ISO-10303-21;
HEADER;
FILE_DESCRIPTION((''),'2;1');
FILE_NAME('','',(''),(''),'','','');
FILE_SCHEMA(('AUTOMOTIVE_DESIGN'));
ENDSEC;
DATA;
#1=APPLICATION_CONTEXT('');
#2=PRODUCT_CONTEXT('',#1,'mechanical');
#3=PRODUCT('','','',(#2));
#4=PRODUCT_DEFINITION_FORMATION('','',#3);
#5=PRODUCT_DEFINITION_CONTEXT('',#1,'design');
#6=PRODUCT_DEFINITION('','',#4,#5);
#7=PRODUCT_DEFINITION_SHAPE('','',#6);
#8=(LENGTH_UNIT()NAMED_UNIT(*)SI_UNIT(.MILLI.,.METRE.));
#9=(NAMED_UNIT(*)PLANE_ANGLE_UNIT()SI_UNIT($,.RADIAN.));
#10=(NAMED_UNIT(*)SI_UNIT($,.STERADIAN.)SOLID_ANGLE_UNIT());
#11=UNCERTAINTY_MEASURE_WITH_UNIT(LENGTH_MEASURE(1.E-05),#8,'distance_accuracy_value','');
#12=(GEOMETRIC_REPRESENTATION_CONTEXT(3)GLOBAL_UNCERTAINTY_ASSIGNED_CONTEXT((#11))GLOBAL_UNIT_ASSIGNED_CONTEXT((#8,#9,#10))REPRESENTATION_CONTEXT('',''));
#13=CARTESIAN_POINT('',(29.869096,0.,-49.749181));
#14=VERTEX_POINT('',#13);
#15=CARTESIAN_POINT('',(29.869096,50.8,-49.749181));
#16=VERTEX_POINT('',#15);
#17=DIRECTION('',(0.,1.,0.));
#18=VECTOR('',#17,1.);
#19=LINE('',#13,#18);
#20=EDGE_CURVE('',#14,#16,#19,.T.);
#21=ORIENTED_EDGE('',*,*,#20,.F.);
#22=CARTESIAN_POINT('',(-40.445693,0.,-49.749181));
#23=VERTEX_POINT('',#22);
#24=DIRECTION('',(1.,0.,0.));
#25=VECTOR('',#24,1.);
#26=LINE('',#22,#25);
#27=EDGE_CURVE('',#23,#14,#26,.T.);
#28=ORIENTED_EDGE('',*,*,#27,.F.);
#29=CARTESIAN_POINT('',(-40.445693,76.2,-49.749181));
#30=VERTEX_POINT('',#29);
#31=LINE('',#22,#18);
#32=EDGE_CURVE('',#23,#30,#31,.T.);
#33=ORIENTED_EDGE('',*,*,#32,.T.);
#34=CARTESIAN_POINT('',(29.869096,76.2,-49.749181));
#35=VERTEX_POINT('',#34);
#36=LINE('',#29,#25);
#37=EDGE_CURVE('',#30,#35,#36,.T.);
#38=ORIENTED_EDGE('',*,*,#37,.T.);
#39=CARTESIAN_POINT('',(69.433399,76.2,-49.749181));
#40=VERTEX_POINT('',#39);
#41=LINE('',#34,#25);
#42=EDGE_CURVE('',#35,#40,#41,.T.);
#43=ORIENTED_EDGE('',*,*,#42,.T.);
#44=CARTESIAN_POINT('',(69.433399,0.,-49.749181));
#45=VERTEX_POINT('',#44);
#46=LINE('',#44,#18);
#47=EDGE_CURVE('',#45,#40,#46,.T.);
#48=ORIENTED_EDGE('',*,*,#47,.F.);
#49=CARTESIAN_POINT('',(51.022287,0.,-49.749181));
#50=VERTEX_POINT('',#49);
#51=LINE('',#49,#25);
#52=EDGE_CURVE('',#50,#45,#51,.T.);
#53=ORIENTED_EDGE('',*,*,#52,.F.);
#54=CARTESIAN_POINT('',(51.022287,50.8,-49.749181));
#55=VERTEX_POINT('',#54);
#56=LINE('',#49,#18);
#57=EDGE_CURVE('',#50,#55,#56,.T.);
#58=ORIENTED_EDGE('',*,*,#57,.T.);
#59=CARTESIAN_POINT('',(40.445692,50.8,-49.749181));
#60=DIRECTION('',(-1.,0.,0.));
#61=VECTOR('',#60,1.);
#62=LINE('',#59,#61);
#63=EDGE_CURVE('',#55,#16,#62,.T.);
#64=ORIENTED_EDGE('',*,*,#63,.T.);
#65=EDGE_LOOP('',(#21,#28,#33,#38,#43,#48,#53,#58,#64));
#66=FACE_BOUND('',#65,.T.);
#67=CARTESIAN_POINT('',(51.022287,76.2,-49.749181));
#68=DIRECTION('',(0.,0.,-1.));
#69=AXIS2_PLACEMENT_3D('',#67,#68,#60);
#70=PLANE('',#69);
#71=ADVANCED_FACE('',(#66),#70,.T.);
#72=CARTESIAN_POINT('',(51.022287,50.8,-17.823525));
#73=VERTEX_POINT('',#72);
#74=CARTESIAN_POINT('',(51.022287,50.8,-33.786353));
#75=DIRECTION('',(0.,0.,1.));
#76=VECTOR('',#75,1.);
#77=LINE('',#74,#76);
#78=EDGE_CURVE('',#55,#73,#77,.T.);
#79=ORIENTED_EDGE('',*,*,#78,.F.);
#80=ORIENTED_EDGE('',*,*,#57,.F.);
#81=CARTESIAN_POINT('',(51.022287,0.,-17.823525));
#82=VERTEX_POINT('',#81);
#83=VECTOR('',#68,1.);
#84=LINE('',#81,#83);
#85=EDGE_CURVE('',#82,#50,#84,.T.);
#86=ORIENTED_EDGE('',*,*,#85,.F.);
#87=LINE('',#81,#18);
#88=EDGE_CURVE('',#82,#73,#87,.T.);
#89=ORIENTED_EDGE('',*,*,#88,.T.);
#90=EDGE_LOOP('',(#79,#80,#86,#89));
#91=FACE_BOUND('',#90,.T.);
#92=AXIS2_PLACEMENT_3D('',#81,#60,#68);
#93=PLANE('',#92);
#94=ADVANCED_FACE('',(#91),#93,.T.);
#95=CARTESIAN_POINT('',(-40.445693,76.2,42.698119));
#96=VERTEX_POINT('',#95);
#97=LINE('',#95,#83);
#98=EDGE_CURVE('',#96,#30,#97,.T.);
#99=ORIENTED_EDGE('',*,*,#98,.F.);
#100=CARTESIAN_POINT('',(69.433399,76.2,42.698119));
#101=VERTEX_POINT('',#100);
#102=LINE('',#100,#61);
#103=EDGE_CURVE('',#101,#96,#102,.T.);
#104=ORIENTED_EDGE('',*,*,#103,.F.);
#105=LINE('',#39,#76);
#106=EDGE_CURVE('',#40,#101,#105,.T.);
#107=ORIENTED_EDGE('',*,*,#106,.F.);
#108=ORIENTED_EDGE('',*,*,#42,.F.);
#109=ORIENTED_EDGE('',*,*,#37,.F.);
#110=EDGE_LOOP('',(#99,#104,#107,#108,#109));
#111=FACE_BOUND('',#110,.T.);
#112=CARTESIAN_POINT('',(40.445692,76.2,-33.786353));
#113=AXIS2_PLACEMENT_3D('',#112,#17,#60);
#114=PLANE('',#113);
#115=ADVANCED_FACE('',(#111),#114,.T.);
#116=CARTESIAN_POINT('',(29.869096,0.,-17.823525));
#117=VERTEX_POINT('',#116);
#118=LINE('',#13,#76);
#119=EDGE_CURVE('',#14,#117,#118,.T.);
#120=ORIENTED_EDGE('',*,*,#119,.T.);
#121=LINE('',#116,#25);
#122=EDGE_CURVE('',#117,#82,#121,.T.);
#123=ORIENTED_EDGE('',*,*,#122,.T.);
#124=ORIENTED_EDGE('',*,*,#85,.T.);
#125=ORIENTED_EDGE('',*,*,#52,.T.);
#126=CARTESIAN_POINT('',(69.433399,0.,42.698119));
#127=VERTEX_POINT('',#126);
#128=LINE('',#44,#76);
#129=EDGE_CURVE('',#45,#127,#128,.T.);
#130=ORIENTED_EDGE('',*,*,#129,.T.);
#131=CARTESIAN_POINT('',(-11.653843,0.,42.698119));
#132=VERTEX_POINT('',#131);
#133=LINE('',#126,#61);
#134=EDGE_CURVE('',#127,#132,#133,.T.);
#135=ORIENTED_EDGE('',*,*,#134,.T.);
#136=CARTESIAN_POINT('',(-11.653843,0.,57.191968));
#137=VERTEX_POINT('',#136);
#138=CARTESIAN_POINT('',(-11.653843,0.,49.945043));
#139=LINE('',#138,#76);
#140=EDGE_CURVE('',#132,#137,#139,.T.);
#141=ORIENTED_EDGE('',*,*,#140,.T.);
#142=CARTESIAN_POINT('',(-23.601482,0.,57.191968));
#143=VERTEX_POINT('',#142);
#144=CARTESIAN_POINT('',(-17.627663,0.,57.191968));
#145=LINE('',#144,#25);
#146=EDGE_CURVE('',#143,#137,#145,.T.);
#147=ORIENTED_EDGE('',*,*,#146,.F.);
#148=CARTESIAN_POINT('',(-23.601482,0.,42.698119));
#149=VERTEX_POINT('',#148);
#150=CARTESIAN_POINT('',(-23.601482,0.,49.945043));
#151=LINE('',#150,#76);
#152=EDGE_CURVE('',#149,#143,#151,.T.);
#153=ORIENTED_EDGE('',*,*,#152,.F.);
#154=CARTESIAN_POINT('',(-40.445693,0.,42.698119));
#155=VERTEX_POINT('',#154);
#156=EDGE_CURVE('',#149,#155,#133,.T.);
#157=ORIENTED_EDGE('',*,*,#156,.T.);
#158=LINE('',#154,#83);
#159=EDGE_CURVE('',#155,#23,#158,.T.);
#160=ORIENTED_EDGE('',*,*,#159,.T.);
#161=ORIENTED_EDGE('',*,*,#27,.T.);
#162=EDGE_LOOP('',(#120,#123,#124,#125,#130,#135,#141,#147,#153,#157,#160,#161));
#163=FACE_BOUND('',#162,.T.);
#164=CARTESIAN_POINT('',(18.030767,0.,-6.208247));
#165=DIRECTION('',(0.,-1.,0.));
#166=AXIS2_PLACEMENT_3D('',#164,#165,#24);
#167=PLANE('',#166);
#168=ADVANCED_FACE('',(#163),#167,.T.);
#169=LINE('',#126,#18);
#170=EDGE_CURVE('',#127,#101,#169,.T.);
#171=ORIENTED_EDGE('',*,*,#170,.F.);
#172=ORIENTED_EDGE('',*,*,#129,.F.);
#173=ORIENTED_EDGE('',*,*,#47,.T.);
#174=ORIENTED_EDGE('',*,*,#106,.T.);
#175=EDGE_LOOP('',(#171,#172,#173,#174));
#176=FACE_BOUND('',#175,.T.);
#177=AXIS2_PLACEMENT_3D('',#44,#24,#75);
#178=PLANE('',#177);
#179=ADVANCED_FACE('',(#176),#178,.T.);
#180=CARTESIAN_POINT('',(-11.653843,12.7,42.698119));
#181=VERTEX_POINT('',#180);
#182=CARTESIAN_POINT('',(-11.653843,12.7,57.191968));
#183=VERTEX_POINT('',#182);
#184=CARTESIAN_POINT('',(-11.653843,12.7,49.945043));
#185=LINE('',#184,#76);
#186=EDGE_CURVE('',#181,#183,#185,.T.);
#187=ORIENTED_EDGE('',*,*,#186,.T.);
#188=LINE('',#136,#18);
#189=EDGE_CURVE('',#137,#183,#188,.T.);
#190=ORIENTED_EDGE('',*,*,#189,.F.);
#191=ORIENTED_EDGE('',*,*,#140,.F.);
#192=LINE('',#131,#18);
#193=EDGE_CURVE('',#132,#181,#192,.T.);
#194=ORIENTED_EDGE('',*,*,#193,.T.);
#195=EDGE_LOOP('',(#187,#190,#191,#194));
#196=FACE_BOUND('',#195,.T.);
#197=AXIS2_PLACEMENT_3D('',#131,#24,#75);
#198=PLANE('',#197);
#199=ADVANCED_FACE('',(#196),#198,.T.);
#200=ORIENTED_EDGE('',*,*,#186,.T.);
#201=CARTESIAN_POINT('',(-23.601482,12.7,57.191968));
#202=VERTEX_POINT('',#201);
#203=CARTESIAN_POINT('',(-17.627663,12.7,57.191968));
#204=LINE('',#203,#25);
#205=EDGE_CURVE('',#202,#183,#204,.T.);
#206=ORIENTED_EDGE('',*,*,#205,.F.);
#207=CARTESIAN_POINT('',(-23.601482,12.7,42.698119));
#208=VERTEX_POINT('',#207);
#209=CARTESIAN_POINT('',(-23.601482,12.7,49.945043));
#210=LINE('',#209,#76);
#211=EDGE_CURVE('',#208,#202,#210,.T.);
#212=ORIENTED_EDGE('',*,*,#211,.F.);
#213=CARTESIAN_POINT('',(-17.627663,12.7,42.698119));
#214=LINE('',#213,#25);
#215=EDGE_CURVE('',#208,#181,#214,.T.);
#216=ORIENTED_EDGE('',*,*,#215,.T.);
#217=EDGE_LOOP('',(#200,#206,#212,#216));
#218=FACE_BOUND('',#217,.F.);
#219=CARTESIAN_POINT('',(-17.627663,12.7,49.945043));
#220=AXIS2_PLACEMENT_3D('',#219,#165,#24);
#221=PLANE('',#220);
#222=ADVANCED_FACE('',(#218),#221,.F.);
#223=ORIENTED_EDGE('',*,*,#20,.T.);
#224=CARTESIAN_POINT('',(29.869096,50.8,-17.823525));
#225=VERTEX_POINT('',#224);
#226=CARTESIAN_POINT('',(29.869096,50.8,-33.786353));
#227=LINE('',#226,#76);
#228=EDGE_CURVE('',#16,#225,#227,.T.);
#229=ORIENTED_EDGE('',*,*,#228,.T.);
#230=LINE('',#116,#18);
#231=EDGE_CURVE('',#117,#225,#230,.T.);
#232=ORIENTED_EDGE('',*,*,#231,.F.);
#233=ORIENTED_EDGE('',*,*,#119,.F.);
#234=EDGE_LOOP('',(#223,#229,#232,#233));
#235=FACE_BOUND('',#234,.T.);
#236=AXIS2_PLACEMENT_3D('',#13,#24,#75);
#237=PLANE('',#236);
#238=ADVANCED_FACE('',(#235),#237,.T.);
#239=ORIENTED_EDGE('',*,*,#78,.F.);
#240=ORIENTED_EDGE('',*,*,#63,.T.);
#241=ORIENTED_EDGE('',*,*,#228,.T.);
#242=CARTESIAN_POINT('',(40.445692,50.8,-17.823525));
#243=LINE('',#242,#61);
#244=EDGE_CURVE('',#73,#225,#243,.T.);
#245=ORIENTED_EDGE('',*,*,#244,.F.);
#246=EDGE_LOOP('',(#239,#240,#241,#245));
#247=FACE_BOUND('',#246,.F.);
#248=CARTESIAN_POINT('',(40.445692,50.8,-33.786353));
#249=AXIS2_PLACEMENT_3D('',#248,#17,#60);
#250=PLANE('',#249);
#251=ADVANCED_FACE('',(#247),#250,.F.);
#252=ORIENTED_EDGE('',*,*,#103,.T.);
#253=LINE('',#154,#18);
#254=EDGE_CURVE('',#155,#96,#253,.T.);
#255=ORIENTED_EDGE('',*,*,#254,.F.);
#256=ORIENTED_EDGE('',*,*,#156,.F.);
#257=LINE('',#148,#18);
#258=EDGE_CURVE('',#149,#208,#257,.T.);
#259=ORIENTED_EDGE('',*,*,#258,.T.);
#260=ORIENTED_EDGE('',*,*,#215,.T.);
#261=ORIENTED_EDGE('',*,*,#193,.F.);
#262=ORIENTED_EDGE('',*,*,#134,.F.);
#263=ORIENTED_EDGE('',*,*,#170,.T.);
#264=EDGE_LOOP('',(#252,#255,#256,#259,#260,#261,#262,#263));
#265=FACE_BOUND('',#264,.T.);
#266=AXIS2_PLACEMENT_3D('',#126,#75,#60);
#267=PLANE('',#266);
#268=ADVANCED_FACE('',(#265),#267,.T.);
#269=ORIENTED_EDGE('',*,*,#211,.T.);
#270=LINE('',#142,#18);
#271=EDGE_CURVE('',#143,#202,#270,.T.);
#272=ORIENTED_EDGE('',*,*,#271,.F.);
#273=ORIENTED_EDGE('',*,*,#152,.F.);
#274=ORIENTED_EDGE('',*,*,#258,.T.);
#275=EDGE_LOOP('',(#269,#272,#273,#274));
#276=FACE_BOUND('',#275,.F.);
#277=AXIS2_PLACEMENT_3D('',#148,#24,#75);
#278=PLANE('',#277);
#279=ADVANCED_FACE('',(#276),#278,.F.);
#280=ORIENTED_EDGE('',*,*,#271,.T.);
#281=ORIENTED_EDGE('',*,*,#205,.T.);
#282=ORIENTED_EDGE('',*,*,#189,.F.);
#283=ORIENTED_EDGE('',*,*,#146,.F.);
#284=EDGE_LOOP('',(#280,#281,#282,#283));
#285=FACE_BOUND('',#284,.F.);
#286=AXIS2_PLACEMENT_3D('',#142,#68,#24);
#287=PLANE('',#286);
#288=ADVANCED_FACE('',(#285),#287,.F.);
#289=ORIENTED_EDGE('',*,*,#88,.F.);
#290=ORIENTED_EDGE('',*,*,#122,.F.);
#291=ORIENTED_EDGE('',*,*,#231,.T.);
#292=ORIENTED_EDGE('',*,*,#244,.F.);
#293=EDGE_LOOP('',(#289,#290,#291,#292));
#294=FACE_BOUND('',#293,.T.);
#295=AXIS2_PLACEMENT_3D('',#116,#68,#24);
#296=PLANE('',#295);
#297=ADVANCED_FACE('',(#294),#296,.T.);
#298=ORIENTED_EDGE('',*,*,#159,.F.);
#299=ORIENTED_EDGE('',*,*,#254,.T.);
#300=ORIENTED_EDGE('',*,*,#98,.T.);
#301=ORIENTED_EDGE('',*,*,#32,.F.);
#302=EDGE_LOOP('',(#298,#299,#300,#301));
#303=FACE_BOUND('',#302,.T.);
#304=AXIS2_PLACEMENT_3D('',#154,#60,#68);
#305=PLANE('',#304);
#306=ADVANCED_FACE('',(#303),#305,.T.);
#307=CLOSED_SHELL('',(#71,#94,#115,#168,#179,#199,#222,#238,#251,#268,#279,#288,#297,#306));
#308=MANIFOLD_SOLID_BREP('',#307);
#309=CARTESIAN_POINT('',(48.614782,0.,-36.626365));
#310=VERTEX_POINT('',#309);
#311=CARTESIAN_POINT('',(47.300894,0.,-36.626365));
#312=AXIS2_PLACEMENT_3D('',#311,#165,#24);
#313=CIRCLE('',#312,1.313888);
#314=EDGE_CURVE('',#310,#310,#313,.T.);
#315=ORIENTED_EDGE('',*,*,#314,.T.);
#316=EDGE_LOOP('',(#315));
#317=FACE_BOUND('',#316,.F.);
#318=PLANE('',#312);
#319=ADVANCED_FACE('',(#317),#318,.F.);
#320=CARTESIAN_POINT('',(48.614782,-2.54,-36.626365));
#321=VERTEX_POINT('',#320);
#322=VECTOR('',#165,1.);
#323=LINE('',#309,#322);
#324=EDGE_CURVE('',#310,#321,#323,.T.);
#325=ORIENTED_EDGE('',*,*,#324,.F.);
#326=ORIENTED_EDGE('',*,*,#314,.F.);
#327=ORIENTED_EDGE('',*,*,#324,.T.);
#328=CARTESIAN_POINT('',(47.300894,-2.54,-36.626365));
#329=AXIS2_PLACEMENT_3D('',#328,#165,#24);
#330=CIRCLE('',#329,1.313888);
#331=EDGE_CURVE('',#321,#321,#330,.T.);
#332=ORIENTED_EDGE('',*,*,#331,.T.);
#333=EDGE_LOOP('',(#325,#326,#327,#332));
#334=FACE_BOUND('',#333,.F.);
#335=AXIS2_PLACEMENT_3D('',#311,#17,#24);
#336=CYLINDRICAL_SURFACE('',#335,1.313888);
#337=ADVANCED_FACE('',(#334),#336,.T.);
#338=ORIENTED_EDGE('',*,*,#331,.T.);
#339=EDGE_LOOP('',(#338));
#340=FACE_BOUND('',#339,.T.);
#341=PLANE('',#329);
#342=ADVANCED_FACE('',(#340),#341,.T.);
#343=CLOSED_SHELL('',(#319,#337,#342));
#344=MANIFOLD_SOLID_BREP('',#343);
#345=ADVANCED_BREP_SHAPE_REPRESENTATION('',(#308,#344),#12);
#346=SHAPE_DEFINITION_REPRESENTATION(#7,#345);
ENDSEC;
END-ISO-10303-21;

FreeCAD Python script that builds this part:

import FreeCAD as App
import Part
import Sketcher
from FreeCAD import Vector
Q = App.Units.Quantity

doc = App.newDocument("Part")
body = doc.addObject("PartDesign::Body", "Body")

sketch1 = body.newObject("Sketcher::SketchObject", "Sketch")
sketch1.AttachmentSupport = (doc.getObject("XZ_Plane"), [""])
sketch1.MapMode = "FlatFace"
sketch1.addGeometry([
    Part.LineSegment(Vector(-40.445693, 42.698119, 0), Vector(-40.445693, -49.749181, 0)),
    Part.LineSegment(Vector(-40.445693, -49.749181, 0), Vector(29.869096, -49.749181, 0)),
    Part.LineSegment(Vector(29.869096, -49.749181, 0), Vector(29.869096, -17.823525, 0)),
    Part.LineSegment(Vector(29.869096, -17.823525, 0), Vector(51.022287, -17.823525, 0)),
    Part.LineSegment(Vector(51.022287, -17.823525, 0), Vector(51.022287, -49.749181, 0)),
    Part.LineSegment(Vector(51.022287, -49.749181, 0), Vector(69.433399, -49.749181, 0)),
    Part.LineSegment(Vector(69.433399, -49.749181, 0), Vector(69.433399, 42.698119, 0)),
    Part.LineSegment(Vector(69.433399, 42.698119, 0), Vector(-40.445693, 42.698119, 0)),
], False)
sketch1.addConstraint([
    Sketcher.Constraint("Coincident", 0, 2, 1, 1),
    Sketcher.Constraint("Coincident", 1, 2, 2, 1),
    Sketcher.Constraint("Coincident", 2, 2, 3, 1),
    Sketcher.Constraint("Coincident", 3, 2, 4, 1),
    Sketcher.Constraint("Coincident", 4, 2, 5, 1),
    Sketcher.Constraint("Coincident", 5, 2, 6, 1),
    Sketcher.Constraint("Coincident", 6, 2, 7, 1),
    Sketcher.Constraint("Coincident", 7, 2, 0, 1),
    Sketcher.Constraint("Vertical", 0),
    Sketcher.Constraint("Horizontal", 1),
    Sketcher.Constraint("Vertical", 2),
    Sketcher.Constraint("Horizontal", 3),
    Sketcher.Constraint("Vertical", 4),
    Sketcher.Constraint("Horizontal", 5),
    Sketcher.Constraint("Vertical", 6),
    Sketcher.Constraint("Horizontal", 7),
    Sketcher.Constraint("Horizontal", 1, 2, 4, 2),
    Sketcher.Constraint("DistanceY", 0, 2, 0, 1, Q("92.4473 mm")),
    Sketcher.Constraint("DistanceX", 1, 1, 1, 2, Q("70.314789 mm")),
    Sketcher.Constraint("DistanceX", 3, 1, 3, 2, Q("21.153191 mm")),
    Sketcher.Constraint("DistanceX", 5, 1, 5, 2, Q("18.411111 mm")),
    Sketcher.Constraint("DistanceX", -1, 1, 5, 2, Q("69.433399 mm")),
    Sketcher.Constraint("DistanceY", 2, 1, 2, 2, Q("31.925656 mm")),
    Sketcher.Constraint("DistanceY", 0, 2, -1, 1, Q("49.749181 mm")),
])
pad1 = body.newObject("PartDesign::Pad", "Pad")
pad1.Profile = sketch1
pad1.Length = Q("3 in")
pad1.Reversed = True

sketch2 = body.newObject("Sketcher::SketchObject", "Sketch001")
sketch2.AttachmentSupport = (doc.getObject("XZ_Plane"), [""])
sketch2.MapMode = "FlatFace"
sketch2.addGeometry([
    Part.LineSegment(Vector(-23.601482, 57.191968, 0), Vector(-23.601482, 42.698119, 0)),
    Part.LineSegment(Vector(-23.601482, 42.698119, 0), Vector(-11.653843, 42.698119, 0)),
    Part.LineSegment(Vector(-11.653843, 42.698119, 0), Vector(-11.653843, 57.191968, 0)),
    Part.LineSegment(Vector(-11.653843, 57.191968, 0), Vector(-23.601482, 57.191968, 0)),
], False)
sketch2.addConstraint([
    Sketcher.Constraint("Coincident", 0, 2, 1, 1),
    Sketcher.Constraint("Coincident", 1, 2, 2, 1),
    Sketcher.Constraint("Coincident", 2, 2, 3, 1),
    Sketcher.Constraint("Coincident", 3, 2, 0, 1),
    Sketcher.Constraint("Vertical", 0),
    Sketcher.Constraint("Horizontal", 1),
    Sketcher.Constraint("Vertical", 2),
    Sketcher.Constraint("Horizontal", 3),
    Sketcher.Constraint("DistanceX", 1, 1, 1, 2, Q("11.947638 mm")),
    Sketcher.Constraint("DistanceY", 0, 2, 0, 1, Q("14.493849 mm")),
    Sketcher.Constraint("DistanceX", 0, 2, -1, 1, Q("23.601482 mm")),
    Sketcher.Constraint("DistanceY", -1, 1, 0, 2, Q("42.698119 mm")),
])
pad2 = body.newObject("PartDesign::Pad", "Pad001")
pad2.Profile = sketch2
pad2.Length = Q("0.5 in")
pad2.Reversed = True

sketch3 = body.newObject("Sketcher::SketchObject", "Sketch002")
sketch3.AttachmentSupport = (doc.getObject("XZ_Plane"), [""])
sketch3.MapMode = "FlatFace"
sketch3.AttachmentOffset = App.Placement(Vector(0, 0, -3 * 25.4), App.Rotation())
sketch3.addGeometry([
    Part.LineSegment(Vector(51.022287, -17.823525, 0), Vector(51.022287, -49.749181, 0)),
    Part.LineSegment(Vector(51.022287, -49.749181, 0), Vector(29.869096, -49.749181, 0)),
    Part.LineSegment(Vector(29.869096, -49.749181, 0), Vector(29.869096, -17.823525, 0)),
    Part.LineSegment(Vector(29.869096, -17.823525, 0), Vector(51.022287, -17.823525, 0)),
], False)
sketch3.addConstraint([
    Sketcher.Constraint("Coincident", 0, 2, 1, 1),
    Sketcher.Constraint("Coincident", 1, 2, 2, 1),
    Sketcher.Constraint("Coincident", 2, 2, 3, 1),
    Sketcher.Constraint("Coincident", 3, 2, 0, 1),
    Sketcher.Constraint("Vertical", 0),
    Sketcher.Constraint("Horizontal", 1),
    Sketcher.Constraint("Vertical", 2),
    Sketcher.Constraint("Horizontal", 3),
    Sketcher.Constraint("DistanceX", 1, 2, 1, 1, Q("21.153191 mm")),
    Sketcher.Constraint("DistanceY", 0, 2, 0, 1, Q("31.925656 mm")),
    Sketcher.Constraint("DistanceY", 0, 2, -1, 1, Q("49.749181 mm")),
    Sketcher.Constraint("DistanceX", -1, 1, 0, 2, Q("51.022287 mm")),
])
pad3 = body.newObject("PartDesign::Pad", "Pad002")
pad3.Profile = sketch3
pad3.Length = Q("1 in")
body2 = doc.addObject("PartDesign::Body", "Body001")

sketch4 = body2.newObject("Sketcher::SketchObject", "Sketch003")
sketch4.AttachmentSupport = (doc.getObject("XZ_Plane001"), [""])
sketch4.MapMode = "FlatFace"
sketch4.addGeometry(Part.Circle(Vector(47.300894, -36.626365, 0), Vector(0, 0, 1), 1.313888), False)
sketch4.addConstraint([
    Sketcher.Constraint("Diameter", 0, Q("2.627776 mm")),
    Sketcher.Constraint("DistanceX", -1, 1, 0, 3, Q("47.300894 mm")),
    Sketcher.Constraint("DistanceY", 0, 3, -1, 1, Q("36.626365 mm")),
])
pad4 = body2.newObject("PartDesign::Pad", "Pad003")
pad4.Profile = sketch4
pad4.Length = Q("0.1 in")

doc.recompute()
